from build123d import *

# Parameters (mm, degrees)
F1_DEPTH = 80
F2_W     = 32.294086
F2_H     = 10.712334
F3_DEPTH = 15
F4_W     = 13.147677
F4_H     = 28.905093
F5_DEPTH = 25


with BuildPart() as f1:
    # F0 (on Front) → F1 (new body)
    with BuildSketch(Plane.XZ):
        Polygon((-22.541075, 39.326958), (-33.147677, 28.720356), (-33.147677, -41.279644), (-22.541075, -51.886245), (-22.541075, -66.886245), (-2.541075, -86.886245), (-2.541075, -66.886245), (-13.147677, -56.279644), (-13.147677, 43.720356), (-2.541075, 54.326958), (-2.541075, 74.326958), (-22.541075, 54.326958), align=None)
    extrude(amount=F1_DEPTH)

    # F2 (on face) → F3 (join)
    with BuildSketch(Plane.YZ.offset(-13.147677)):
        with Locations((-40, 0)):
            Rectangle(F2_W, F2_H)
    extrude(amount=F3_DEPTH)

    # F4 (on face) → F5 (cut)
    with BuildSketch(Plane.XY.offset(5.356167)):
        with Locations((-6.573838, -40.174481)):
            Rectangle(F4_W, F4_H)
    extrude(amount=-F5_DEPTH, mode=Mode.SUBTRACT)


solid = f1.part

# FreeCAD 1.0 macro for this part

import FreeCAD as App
import Part
import Sketcher
from FreeCAD import Vector


def add_polygon(sketch, points):
    """Adds a closed chain of lines whose ends are joined by coincident constraints."""
    first, n = sketch.GeometryCount, len(points)
    for a, b in zip(points, points[1:] + points[:1]):
        sketch.addGeometry(Part.LineSegment(App.Vector(*a, 0), App.Vector(*b, 0)), False)
    for i in range(n):
        sketch.addConstraint(Sketcher.Constraint("Coincident", first + i, 2, first + (i + 1) % n, 1))

doc = App.newDocument("Part")
params = doc.addObject("Spreadsheet::Sheet", "Params")
for row, (alias, value) in enumerate([
    ("sketch1_height", "70 mm"),
    ("sketch1_height2", "15 mm"),
    ("sketch1_height3", "20 mm"),
    ("sketch1_length", "15 mm"),
    ("pad1_length", "80 mm"),
    ("pad2_length", "15 mm"),
    ("pocket1_length", "25 mm"),
], start=1):
    params.set(f"A{row}", alias)
    params.set(f"B{row}", "=" + value)
    params.setAlias(f"B{row}", alias)

body = doc.addObject("PartDesign::Body", "Body")

# Sketch on XZ plane
sketch1 = body.newObject("Sketcher::SketchObject", "Sketch")
sketch1.AttachmentSupport = (doc.getObject("XZ_Plane"), [""])
sketch1.MapMode = "FlatFace"
add_polygon(sketch1, [(-22.541075, 39.326958), (-33.147677, 28.720356), (-33.147677, -41.279644), (-22.541075, -51.886245), (-22.541075, -66.886245), (-2.541075, -86.886245), (-2.541075, -66.886245), (-13.147677, -56.279644), (-13.147677, 43.720356), (-2.541075, 54.326958), (-2.541075, 74.326958), (-22.541075, 54.326958)])  # lines 0-11
sketch1.addConstraint([
    Sketcher.Constraint("Vertical", 1),
    Sketcher.Constraint("Vertical", 3),
    Sketcher.Constraint("Vertical", 5),
    Sketcher.Constraint("Vertical", 7),
    Sketcher.Constraint("Vertical", 9),
    Sketcher.Constraint("Vertical", 11),
    Sketcher.Constraint("Perpendicular", 0, 2),
    Sketcher.Constraint("Parallel", 2, 4),
    Sketcher.Constraint("Parallel", 4, 6),
    Sketcher.Constraint("Perpendicular", 6, 8),
    Sketcher.Constraint("Parallel", 8, 10),
    Sketcher.Constraint("Horizontal", 3, 2, 5, 2),
    Sketcher.Constraint("Horizontal", 8, 2, 10, 2),
    Sketcher.Constraint("Vertical", 5, 2, 8, 2),
    Sketcher.Constraint("Vertical", 3, 2, 10, 2),
    Sketcher.Constraint("Equal", 5, 9),
    Sketcher.Constraint("Equal", 3, 11),
    Sketcher.Constraint("Equal", 2, 6),
    Sketcher.Constraint("DistanceY", 1, 2, 1, 1, 70.0),
    Sketcher.Constraint("DistanceY", 3, 2, 3, 1, 15.0),
    Sketcher.Constraint("DistanceY", 5, 1, 5, 2, 20.0),
    Sketcher.Constraint("Distance", 0, 15.0),
    Sketcher.Constraint("DistanceY", -1, 1, 9, 2, 74.326958),
    Sketcher.Constraint("DistanceX", 0, 2, -1, 1, 33.147677),
])
sketch1.setExpression("Constraints[30]", "Params.sketch1_height")
sketch1.setExpression("Constraints[31]", "Params.sketch1_height2")
sketch1.setExpression("Constraints[32]", "Params.sketch1_height3")
sketch1.setExpression("Constraints[33]", "Params.sketch1_length")
pad1 = body.newObject("PartDesign::Pad", "Pad")
pad1.Profile = sketch1
pad1.setExpression("Length", "Params.pad1_length")

# Sketch on YZ plane
sketch2 = body.newObject("Sketcher::SketchObject", "Sketch001")
sketch2.AttachmentSupport = (doc.getObject("YZ_Plane"), [""])
sketch2.MapMode = "FlatFace"
sketch2.AttachmentOffset = App.Placement(Vector(0, 0, -13.147677), App.Rotation())
add_polygon(sketch2, [(-56.147043, 5.356167), (-56.147043, -5.356167), (-23.852957, -5.356167), (-23.852957, 5.356167)])  # lines 0-3
sketch2.addConstraint([
    Sketcher.Constraint("Vertical", 0),
    Sketcher.Constraint("Horizontal", 1),
    Sketcher.Constraint("Vertical", 2),
    Sketcher.Constraint("Horizontal", 3),
    Sketcher.Constraint("DistanceX", 1, 1, 1, 2, 32.294086),
    Sketcher.Constraint("DistanceY", 0, 2, 0, 1, 10.712334),
    Sketcher.Constraint("DistanceX", 0, 2, -1, 1, 56.147043),
    Sketcher.Constraint("DistanceY", 0, 2, -1, 1, 5.356167),
])
pad2 = body.newObject("PartDesign::Pad", "Pad001")
pad2.Profile = sketch2
pad2.setExpression("Length", "Params.pad2_length")

# Sketch on XY plane
sketch3 = body.newObject("Sketcher::SketchObject", "Sketch002")
sketch3.AttachmentSupport = (doc.getObject("XY_Plane"), [""])
sketch3.MapMode = "FlatFace"
sketch3.AttachmentOffset = App.Placement(Vector(0, 0, 5.356167), App.Rotation())
add_polygon(sketch3, [(-13.147676, -25.721934), (-13.147676, -54.627027), (0, -54.627027), (0, -25.721934)])  # lines 0-3
sketch3.addConstraint([
    Sketcher.Constraint("Vertical", 0),
    Sketcher.Constraint("Horizontal", 1),
    Sketcher.Constraint("Vertical", 2),
    Sketcher.Constraint("Horizontal", 3),
    Sketcher.Constraint("PointOnObject", 1, 2, -2),
    Sketcher.Constraint("DistanceX", 1, 1, 1, 2, 13.147677),
    Sketcher.Constraint("DistanceY", 0, 2, 0, 1, 28.905093),
    Sketcher.Constraint("DistanceY", 0, 2, -1, 1, 54.627027),
])
pocket1 = body.newObject("PartDesign::Pocket", "Pocket")
pocket1.Profile = sketch3
pocket1.setExpression("Length", "Params.pocket1_length")

doc.recompute()
